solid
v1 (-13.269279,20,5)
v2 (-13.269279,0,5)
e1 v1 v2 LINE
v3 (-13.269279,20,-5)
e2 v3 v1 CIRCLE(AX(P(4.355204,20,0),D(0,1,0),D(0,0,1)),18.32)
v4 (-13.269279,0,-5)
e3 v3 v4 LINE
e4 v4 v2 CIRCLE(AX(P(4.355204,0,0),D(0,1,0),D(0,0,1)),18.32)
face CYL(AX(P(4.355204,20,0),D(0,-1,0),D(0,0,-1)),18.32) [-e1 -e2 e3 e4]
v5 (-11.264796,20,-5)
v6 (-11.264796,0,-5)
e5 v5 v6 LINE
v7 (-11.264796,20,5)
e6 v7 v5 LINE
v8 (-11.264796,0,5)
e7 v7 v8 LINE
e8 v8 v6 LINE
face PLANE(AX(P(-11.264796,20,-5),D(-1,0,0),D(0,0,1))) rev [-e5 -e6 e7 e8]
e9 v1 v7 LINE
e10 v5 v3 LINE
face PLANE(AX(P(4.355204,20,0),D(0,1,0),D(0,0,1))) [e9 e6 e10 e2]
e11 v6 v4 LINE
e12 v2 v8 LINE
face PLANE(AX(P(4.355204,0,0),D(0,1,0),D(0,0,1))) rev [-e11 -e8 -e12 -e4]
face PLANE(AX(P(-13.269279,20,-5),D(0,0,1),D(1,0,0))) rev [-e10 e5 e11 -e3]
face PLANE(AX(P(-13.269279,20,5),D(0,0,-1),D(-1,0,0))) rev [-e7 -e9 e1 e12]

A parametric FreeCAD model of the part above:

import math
import FreeCAD as App
import Part
import Sketcher

V = App.Vector

doc = App.newDocument("Part")
body = doc.addObject("PartDesign::Body", "Body")

# Sketch on XZ plane
sketch1 = body.newObject("Sketcher::SketchObject", "Sketch")
sketch1.AttachmentSupport = (doc.getObject("XZ_Plane"), [""])
sketch1.MapMode = "FlatFace"
sketch1.addGeometry(Part.LineSegment(V(-11.264796, -5, 0), V(-13.269279, -5, 0)), False)
sketch1.addGeometry(Part.ArcOfCircle(Part.Circle(V(4.355204, 0, 0), V(0, 0, 1), 18.32), math.radians(164.161559), math.radians(195.838441)), False)
sketch1.addGeometry(Part.LineSegment(V(-13.269279, 5, 0), V(-11.264796, 5, 0)), False)
sketch1.addGeometry(Part.LineSegment(V(-11.264796, 5, 0), V(-11.264796, -5, 0)), False)
sketch1.addConstraint(Sketcher.Constraint("Coincident", 0, 2, 1, 2))
sketch1.addConstraint(Sketcher.Constraint("Coincident", 1, 1, 2, 1))
sketch1.addConstraint(Sketcher.Constraint("Coincident", 2, 2, 3, 1))
sketch1.addConstraint(Sketcher.Constraint("Coincident", 3, 2, 0, 1))
sketch1.addConstraint(Sketcher.Constraint("Horizontal", 0))
sketch1.addConstraint(Sketcher.Constraint("Horizontal", 2))
sketch1.addConstraint(Sketcher.Constraint("Vertical", 3))
sketch1.addConstraint(Sketcher.Constraint("Symmetric", 0, 2, 1, 1, -1))
sketch1.addConstraint(Sketcher.Constraint("DistanceY", 3, 2, 3, 1, 10.0))
sketch1.addConstraint(Sketcher.Constraint("Radius", 1, 18.32))
sketch1.addConstraint(Sketcher.Constraint("DistanceX", 2, 2, 1, 3, 15.62))
sketch1.addConstraint(Sketcher.Constraint("DistanceX", 0, 2, -1, 1, 13.269279))
pad1 = body.newObject("PartDesign::Pad", "Pad")
pad1.Profile = sketch1
pad1.Length = 20
pad1.Reversed = True

doc.recompute()
